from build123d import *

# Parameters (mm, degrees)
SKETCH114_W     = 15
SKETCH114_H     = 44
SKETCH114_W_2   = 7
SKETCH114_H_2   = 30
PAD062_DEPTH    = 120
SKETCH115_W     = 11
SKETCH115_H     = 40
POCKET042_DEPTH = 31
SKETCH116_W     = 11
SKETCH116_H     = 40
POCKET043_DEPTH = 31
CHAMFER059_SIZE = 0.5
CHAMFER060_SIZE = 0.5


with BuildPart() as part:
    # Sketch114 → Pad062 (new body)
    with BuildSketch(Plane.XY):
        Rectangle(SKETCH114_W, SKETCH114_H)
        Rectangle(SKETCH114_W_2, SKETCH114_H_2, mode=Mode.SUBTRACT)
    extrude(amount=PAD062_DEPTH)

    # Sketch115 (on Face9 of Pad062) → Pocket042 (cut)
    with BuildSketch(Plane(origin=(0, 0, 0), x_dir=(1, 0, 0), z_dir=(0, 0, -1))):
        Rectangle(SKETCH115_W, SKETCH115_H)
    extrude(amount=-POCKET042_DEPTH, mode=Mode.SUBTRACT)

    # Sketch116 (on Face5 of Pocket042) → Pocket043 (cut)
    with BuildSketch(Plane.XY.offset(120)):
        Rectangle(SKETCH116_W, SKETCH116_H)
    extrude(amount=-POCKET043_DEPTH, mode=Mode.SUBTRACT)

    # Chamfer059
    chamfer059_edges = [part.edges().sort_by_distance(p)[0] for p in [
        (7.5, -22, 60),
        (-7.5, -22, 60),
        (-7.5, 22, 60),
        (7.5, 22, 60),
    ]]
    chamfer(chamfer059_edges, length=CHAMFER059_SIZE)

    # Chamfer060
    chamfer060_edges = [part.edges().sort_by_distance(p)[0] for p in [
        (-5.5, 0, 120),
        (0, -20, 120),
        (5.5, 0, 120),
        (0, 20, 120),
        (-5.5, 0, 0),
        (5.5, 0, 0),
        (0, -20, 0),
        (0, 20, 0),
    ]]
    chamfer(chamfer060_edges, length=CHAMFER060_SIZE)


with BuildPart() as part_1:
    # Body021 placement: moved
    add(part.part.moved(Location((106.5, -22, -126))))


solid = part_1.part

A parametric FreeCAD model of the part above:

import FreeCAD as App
import Part
import Sketcher
from FreeCAD import Vector
Q = App.Units.Quantity


def edges_at(feature, points):
    """Names of the edges that pass closest to the given points."""
    edges = feature.Shape.Edges
    near = lambda p: min(range(len(edges)), key=lambda i: edges[i].distToShape(Part.Vertex(*p))[0])
    return sorted({f"Edge{near(p) + 1}" for p in points})

doc = App.newDocument("Part")
body = doc.addObject("PartDesign::Body", "Body")

sketch1 = body.newObject("Sketcher::SketchObject", "Sketch")
sketch1.AttachmentSupport = (doc.getObject("XY_Plane"), [""])
sketch1.MapMode = "FlatFace"
sketch1.addGeometry([
    Part.LineSegment(Vector(-8, 22, 0), Vector(-8, -22, 0)),
    Part.LineSegment(Vector(-8, -22, 0), Vector(8, -22, 0)),
    Part.LineSegment(Vector(8, -22, 0), Vector(8, 22, 0)),
    Part.LineSegment(Vector(8, 22, 0), Vector(-8, 22, 0)),
    Part.LineSegment(Vector(4, -15, 0), Vector(-4, -15, 0)),
    Part.LineSegment(Vector(-4, -15, 0), Vector(-4, 15, 0)),
    Part.LineSegment(Vector(-4, 15, 0), Vector(4, 15, 0)),
    Part.LineSegment(Vector(4, 15, 0), Vector(4, -15, 0)),
], False)
sketch1.addConstraint([
    Sketcher.Constraint("Coincident", 0, 2, 1, 1),
    Sketcher.Constraint("Coincident", 1, 2, 2, 1),
    Sketcher.Constraint("Coincident", 2, 2, 3, 1),
    Sketcher.Constraint("Coincident", 3, 2, 0, 1),
    Sketcher.Constraint("Coincident", 4, 2, 5, 1),
    Sketcher.Constraint("Coincident", 5, 2, 6, 1),
    Sketcher.Constraint("Coincident", 6, 2, 7, 1),
    Sketcher.Constraint("Coincident", 7, 2, 4, 1),
    Sketcher.Constraint("Vertical", 0),
    Sketcher.Constraint("Horizontal", 1),
    Sketcher.Constraint("Vertical", 2),
    Sketcher.Constraint("Horizontal", 3),
    Sketcher.Constraint("Horizontal", 4),
    Sketcher.Constraint("Vertical", 5),
    Sketcher.Constraint("Horizontal", 6),
    Sketcher.Constraint("Vertical", 7),
    Sketcher.Constraint("Symmetric", 0, 2, 2, 2, -1, 1),
    Sketcher.Constraint("Symmetric", 4, 2, 6, 2, -1, 1),
    Sketcher.Constraint("DistanceX", 1, 1, 1, 2, Q("15 mm")),
    Sketcher.Constraint("DistanceX", 4, 2, 4, 1, Q("7 mm")),
    Sketcher.Constraint("DistanceY", 0, 2, 0, 1, Q("44 mm")),
    Sketcher.Constraint("DistanceY", 5, 1, 5, 2, Q("30 mm")),
])
pad1 = body.newObject("PartDesign::Pad", "Pad")
pad1.Profile = sketch1
pad1.Length = 120

sketch2 = body.newObject("Sketcher::SketchObject", "Sketch001")
sketch2.AttachmentSupport = (doc.getObject("XY_Plane"), [""])
sketch2.MapMode = "FlatFace"
sketch2.addGeometry([
    Part.LineSegment(Vector(-6, -20, 0), Vector(-6, 20, 0)),
    Part.LineSegment(Vector(-6, 20, 0), Vector(6, 20, 0)),
    Part.LineSegment(Vector(6, 20, 0), Vector(6, -20, 0)),
    Part.LineSegment(Vector(6, -20, 0), Vector(-6, -20, 0)),
], False)
sketch2.addConstraint([
    Sketcher.Constraint("Coincident", 0, 2, 1, 1),
    Sketcher.Constraint("Coincident", 1, 2, 2, 1),
    Sketcher.Constraint("Coincident", 2, 2, 3, 1),
    Sketcher.Constraint("Coincident", 3, 2, 0, 1),
    Sketcher.Constraint("Vertical", 0),
    Sketcher.Constraint("Horizontal", 1),
    Sketcher.Constraint("Vertical", 2),
    Sketcher.Constraint("Horizontal", 3),
    Sketcher.Constraint("Symmetric", 0, 2, 2, 2, -1, 1),
    Sketcher.Constraint("DistanceX", 1, 1, 1, 2, Q("11 mm")),
    Sketcher.Constraint("DistanceY", 0, 1, 0, 2, Q("40 mm")),
])
pocket1 = body.newObject("PartDesign::Pocket", "Pocket")
pocket1.Profile = sketch2
pocket1.Length = 31
pocket1.Reversed = True

sketch3 = body.newObject("Sketcher::SketchObject", "Sketch002")
sketch3.AttachmentSupport = (doc.getObject("XY_Plane"), [""])
sketch3.MapMode = "FlatFace"
sketch3.AttachmentOffset = App.Placement(Vector(0, 0, 120), App.Rotation())
sketch3.addGeometry([
    Part.LineSegment(Vector(-6, 20, 0), Vector(-6, -20, 0)),
    Part.LineSegment(Vector(-6, -20, 0), Vector(6, -20, 0)),
    Part.LineSegment(Vector(6, -20, 0), Vector(6, 20, 0)),
    Part.LineSegment(Vector(6, 20, 0), Vector(-6, 20, 0)),
], False)
sketch3.addConstraint([
    Sketcher.Constraint("Coincident", 0, 2, 1, 1),
    Sketcher.Constraint("Coincident", 1, 2, 2, 1),
    Sketcher.Constraint("Coincident", 2, 2, 3, 1),
    Sketcher.Constraint("Coincident", 3, 2, 0, 1),
    Sketcher.Constraint("Vertical", 0),
    Sketcher.Constraint("Horizontal", 1),
    Sketcher.Constraint("Vertical", 2),
    Sketcher.Constraint("Horizontal", 3),
    Sketcher.Constraint("Symmetric", 0, 2, 2, 2, -1, 1),
    Sketcher.Constraint("DistanceX", 1, 1, 1, 2, Q("11 mm")),
    Sketcher.Constraint("DistanceY", 0, 2, 0, 1, Q("40 mm")),
])
pocket2 = body.newObject("PartDesign::Pocket", "Pocket001")
pocket2.Profile = sketch3
pocket2.Length = 31
doc.recompute()

chamfer = body.newObject("PartDesign::Chamfer", "Chamfer")
chamfer.Base = (pocket2, edges_at(pocket2, [
    (7.5, -22, 60),
    (-7.5, -22, 60),
    (-7.5, 22, 60),
    (7.5, 22, 60),
]))
chamfer.Size = 0.5
doc.recompute()

chamfer2 = body.newObject("PartDesign::Chamfer", "Chamfer001")
chamfer2.Base = (chamfer, edges_at(chamfer, [
    (-5.5, 0, 120),
    (0, -20, 120),
    (5.5, 0, 120),
    (0, 20, 120),
    (-5.5, 0, 0),
    (5.5, 0, 0),
    (0, -20, 0),
    (0, 20, 0),
]))
chamfer2.Size = 0.5
body2 = doc.addObject("PartDesign::Body", "Body001")
doc.recompute()

body.Placement = App.Placement(Vector(106.5, -22, -126), App.Rotation(Vector(0, 0, 1), 0))
boolean = body2.newObject("PartDesign::Boolean", "Boolean")
boolean.Type = "Fuse"
boolean.addObjects([body])

doc.recompute()
